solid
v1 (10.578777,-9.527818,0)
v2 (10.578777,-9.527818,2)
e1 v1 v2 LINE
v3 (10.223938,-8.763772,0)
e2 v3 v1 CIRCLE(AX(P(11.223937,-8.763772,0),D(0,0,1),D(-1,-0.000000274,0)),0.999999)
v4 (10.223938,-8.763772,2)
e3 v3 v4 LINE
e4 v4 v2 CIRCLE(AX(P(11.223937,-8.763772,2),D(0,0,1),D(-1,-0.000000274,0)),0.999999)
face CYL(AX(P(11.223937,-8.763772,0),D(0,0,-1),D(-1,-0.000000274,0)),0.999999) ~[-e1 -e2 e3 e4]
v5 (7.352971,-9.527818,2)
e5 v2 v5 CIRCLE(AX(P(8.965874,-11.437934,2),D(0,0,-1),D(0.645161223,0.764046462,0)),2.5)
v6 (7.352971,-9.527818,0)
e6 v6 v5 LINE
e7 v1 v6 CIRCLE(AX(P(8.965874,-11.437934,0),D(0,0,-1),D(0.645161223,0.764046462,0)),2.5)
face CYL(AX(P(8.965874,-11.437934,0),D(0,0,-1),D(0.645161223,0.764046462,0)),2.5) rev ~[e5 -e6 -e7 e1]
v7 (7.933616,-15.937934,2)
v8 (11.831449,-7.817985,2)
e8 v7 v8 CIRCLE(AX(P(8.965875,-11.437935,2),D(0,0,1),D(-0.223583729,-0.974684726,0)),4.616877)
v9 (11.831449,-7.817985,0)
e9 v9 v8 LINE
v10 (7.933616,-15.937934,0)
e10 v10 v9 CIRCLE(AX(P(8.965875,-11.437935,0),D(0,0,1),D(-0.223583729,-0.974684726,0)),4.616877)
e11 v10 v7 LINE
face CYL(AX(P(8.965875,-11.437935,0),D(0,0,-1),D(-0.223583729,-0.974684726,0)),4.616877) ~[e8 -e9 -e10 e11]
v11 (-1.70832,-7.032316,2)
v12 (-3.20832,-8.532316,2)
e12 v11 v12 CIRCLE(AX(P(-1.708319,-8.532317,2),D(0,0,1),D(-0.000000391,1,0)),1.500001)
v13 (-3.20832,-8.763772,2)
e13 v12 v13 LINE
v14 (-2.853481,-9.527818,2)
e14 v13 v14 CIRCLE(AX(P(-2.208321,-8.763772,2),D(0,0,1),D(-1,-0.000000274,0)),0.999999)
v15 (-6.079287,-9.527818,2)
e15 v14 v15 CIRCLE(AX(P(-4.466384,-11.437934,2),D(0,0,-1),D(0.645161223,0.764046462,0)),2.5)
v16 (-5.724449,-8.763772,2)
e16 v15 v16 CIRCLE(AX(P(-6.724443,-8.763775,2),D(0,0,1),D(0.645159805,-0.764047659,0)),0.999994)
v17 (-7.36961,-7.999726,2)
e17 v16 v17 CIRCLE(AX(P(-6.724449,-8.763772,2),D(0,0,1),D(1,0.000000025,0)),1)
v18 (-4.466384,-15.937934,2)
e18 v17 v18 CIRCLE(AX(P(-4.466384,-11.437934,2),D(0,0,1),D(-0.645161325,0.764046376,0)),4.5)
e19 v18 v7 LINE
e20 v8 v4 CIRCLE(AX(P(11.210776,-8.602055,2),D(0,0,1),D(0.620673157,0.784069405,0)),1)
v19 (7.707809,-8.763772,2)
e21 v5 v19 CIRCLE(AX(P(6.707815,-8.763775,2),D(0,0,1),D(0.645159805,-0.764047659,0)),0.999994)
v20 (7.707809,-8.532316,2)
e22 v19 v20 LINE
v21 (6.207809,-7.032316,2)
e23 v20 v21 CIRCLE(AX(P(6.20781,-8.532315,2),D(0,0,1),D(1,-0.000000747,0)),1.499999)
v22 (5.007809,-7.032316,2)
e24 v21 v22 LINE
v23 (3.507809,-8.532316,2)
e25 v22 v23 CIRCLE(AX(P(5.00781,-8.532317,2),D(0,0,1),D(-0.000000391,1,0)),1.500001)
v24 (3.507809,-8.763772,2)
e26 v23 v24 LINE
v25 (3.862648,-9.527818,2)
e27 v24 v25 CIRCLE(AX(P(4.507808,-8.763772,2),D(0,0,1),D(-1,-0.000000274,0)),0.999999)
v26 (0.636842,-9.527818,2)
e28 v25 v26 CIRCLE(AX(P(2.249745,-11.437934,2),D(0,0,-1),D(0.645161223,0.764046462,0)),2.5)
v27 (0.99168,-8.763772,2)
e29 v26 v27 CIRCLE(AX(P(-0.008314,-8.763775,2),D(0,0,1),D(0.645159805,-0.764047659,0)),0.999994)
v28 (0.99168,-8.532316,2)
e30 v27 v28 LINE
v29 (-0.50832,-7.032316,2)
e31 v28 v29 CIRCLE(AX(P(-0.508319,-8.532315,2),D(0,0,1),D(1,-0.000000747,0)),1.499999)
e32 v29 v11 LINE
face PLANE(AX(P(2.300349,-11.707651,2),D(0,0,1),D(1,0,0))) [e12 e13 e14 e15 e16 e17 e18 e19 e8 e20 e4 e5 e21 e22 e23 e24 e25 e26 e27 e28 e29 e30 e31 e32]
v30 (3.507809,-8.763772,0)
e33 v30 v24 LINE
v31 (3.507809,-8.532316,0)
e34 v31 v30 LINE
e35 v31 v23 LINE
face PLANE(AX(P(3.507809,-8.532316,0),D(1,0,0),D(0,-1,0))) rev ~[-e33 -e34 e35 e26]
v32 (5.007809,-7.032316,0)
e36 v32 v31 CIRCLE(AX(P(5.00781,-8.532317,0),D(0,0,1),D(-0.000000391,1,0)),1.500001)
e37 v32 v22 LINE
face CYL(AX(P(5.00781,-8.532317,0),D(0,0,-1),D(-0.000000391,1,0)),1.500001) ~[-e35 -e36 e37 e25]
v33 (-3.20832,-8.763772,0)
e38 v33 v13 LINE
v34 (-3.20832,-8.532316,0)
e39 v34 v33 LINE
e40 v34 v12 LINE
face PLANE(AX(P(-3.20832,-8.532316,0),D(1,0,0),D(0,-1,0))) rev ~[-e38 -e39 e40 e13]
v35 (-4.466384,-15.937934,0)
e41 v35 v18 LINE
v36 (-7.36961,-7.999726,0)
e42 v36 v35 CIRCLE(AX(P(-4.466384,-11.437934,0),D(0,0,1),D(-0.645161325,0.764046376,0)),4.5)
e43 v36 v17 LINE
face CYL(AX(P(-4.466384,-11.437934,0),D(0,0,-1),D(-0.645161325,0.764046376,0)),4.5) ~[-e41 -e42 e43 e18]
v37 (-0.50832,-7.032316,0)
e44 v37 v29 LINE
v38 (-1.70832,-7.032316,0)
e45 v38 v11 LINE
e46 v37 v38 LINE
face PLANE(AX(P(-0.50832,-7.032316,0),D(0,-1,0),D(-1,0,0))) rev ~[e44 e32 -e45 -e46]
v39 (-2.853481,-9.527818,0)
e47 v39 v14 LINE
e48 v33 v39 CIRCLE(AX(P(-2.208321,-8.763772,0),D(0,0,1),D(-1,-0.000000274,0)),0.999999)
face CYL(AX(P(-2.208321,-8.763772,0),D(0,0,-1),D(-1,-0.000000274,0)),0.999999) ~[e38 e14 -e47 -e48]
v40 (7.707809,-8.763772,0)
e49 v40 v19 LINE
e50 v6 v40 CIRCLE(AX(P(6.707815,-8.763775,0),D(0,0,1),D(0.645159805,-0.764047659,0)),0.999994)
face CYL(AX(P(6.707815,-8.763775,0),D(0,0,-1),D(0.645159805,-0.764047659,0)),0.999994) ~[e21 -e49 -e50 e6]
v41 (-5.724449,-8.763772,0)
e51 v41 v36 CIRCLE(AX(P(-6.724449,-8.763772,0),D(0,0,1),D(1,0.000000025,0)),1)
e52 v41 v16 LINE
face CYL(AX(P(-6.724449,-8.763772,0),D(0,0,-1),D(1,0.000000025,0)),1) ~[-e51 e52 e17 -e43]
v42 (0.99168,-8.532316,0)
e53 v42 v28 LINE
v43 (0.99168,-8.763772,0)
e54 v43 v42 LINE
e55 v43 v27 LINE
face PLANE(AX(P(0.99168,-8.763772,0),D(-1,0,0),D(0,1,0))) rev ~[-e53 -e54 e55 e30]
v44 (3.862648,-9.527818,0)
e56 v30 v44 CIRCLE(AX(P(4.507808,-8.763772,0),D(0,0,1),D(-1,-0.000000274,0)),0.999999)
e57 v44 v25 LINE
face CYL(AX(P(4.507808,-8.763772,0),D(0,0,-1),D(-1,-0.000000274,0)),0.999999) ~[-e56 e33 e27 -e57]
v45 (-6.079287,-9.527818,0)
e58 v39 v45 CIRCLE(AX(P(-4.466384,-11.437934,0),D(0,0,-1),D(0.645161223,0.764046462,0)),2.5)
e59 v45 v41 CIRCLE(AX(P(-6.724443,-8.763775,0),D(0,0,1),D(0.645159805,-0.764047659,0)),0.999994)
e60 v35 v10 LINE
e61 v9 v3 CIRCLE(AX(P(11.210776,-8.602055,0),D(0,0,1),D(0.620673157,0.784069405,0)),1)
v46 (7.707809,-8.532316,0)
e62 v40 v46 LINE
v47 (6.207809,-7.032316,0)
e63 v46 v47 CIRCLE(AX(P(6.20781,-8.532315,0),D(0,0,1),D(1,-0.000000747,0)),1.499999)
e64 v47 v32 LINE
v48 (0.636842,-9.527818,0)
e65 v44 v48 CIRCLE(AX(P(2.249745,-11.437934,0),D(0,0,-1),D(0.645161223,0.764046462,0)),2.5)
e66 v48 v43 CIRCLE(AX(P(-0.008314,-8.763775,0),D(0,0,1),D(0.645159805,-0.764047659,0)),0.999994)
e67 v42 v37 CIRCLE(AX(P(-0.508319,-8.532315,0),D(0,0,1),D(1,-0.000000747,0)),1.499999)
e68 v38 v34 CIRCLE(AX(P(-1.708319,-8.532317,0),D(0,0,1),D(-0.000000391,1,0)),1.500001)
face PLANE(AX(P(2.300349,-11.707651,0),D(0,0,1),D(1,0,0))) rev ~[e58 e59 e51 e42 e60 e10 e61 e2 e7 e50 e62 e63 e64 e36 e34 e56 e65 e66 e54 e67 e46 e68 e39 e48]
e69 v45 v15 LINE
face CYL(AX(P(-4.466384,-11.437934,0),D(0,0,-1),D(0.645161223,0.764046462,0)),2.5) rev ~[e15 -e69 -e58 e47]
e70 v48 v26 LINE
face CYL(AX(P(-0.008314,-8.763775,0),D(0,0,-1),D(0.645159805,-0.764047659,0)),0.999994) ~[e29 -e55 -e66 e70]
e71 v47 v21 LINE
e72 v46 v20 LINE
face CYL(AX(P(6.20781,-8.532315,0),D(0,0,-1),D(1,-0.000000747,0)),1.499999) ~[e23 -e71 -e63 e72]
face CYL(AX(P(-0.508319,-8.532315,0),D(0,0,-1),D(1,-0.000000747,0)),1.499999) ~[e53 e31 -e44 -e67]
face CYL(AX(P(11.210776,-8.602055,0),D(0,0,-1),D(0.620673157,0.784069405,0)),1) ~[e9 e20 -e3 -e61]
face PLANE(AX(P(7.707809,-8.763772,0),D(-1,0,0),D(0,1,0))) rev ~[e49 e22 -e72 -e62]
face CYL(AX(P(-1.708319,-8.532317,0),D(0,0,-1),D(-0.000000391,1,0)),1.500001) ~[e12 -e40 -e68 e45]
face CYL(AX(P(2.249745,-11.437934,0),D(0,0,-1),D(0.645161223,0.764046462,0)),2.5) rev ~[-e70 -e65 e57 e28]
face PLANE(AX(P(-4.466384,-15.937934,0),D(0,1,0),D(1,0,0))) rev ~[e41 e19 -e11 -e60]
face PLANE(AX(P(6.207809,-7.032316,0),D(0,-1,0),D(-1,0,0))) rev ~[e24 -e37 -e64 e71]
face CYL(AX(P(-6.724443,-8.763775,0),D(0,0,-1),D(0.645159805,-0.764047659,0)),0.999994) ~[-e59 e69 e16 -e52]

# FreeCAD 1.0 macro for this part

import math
import FreeCAD as App
import Part
import Sketcher

V = App.Vector
Q = App.Units.Quantity

doc = App.newDocument("Part")
body = doc.addObject("PartDesign::Body", "Body")

# Sketch on XY plane
sketch1 = doc.addObject("Sketcher::SketchObject", "Sketch")
body.addObject(sketch1)
sketch1.AttachmentSupport = (doc.XY_Plane, [""])
sketch1.MapMode = "FlatFace"
sketch1.addGeometry(Part.ArcOfCircle(Part.Circle(V(-4.47, -11.44, 0), V(0, 0, 1), 2.5), math.radians(130), math.radians(410)), False)
sketch1.addGeometry(Part.ArcOfCircle(Part.Circle(V(-6.72, -8.76, 0), V(0, 0, 1), 1), math.radians(-50), math.radians(0)), False)
sketch1.addGeometry(Part.ArcOfCircle(Part.Circle(V(-6.72, -8.76, 0), V(0, 0, 1), 1), math.radians(0), math.radians(130)), False)
sketch1.addGeometry(Part.ArcOfCircle(Part.Circle(V(-4.47, -11.44, 0), V(0, 0, 1), 4.5), math.radians(130), math.radians(270)), False)
sketch1.addGeometry(Part.LineSegment(V(-4.47, -15.94, 0), V(7.93, -15.94, 0)), False)
sketch1.addGeometry(Part.ArcOfCircle(Part.Circle(V(8.97, -11.44, 0), V(0, 0, 1), 4.62), math.radians(-103), math.radians(52)), False)
sketch1.addGeometry(Part.ArcOfCircle(Part.Circle(V(11.21, -8.6, 0), V(0, 0, 1), 1), math.radians(52), math.radians(189)), False)
sketch1.addGeometry(Part.ArcOfCircle(Part.Circle(V(11.22, -8.76, 0), V(0, 0, 1), 1), math.radians(-180), math.radians(-130)), False)
sketch1.addGeometry(Part.ArcOfCircle(Part.Circle(V(8.97, -11.44, 0), V(0, 0, 1), 2.5), math.radians(130), math.radians(410)), False)
sketch1.addGeometry(Part.ArcOfCircle(Part.Circle(V(6.71, -8.76, 0), V(0, 0, 1), 1), math.radians(-50), math.radians(0)), False)
sketch1.addGeometry(Part.LineSegment(V(7.71, -8.76, 0), V(7.71, -8.53, 0)), False)
sketch1.addGeometry(Part.ArcOfCircle(Part.Circle(V(6.21, -8.53, 0), V(0, 0, 1), 1.5), math.radians(0), math.radians(90)), False)
sketch1.addGeometry(Part.LineSegment(V(6.21, -7.03, 0), V(5.01, -7.03, 0)), False)
sketch1.addGeometry(Part.ArcOfCircle(Part.Circle(V(5.01, -8.53, 0), V(0, 0, 1), 1.5), math.radians(90), math.radians(180)), False)
sketch1.addGeometry(Part.LineSegment(V(3.51, -8.53, 0), V(3.51, -8.76, 0)), False)
sketch1.addGeometry(Part.ArcOfCircle(Part.Circle(V(4.51, -8.76, 0), V(0, 0, 1), 1), math.radians(-180), math.radians(-130)), False)
sketch1.addGeometry(Part.ArcOfCircle(Part.Circle(V(2.25, -11.44, 0), V(0, 0, 1), 2.5), math.radians(130), math.radians(410)), False)
sketch1.addGeometry(Part.ArcOfCircle(Part.Circle(V(-0.01, -8.76, 0), V(0, 0, 1), 1), math.radians(-50), math.radians(0)), False)
sketch1.addGeometry(Part.LineSegment(V(0.99, -8.76, 0), V(0.99, -8.53, 0)), False)
sketch1.addGeometry(Part.ArcOfCircle(Part.Circle(V(-0.51, -8.53, 0), V(0, 0, 1), 1.5), math.radians(0), math.radians(90)), False)
sketch1.addGeometry(Part.LineSegment(V(-0.51, -7.03, 0), V(-1.71, -7.03, 0)), False)
sketch1.addGeometry(Part.ArcOfCircle(Part.Circle(V(-1.71, -8.53, 0), V(0, 0, 1), 1.5), math.radians(90), math.radians(180)), False)
sketch1.addGeometry(Part.LineSegment(V(-3.21, -8.53, 0), V(-3.21, -8.76, 0)), False)
sketch1.addGeometry(Part.ArcOfCircle(Part.Circle(V(-2.21, -8.76, 0), V(0, 0, 1), 1), math.radians(-180), math.radians(-130)), False)
sketch1.addConstraint(Sketcher.Constraint("Tangent", 0, 1, 1, 1))
sketch1.addConstraint(Sketcher.Constraint("Coincident", 1, 2, 2, 1))
sketch1.addConstraint(Sketcher.Constraint("Tangent", 2, 2, 3, 1))
sketch1.addConstraint(Sketcher.Constraint("Tangent", 3, 2, 4, 1))
sketch1.addConstraint(Sketcher.Constraint("Coincident", 4, 2, 5, 1))
sketch1.addConstraint(Sketcher.Constraint("Tangent", 5, 2, 6, 1))
sketch1.addConstraint(Sketcher.Constraint("Coincident", 6, 2, 7, 1))
sketch1.addConstraint(Sketcher.Constraint("Tangent", 7, 2, 8, 2))
sketch1.addConstraint(Sketcher.Constraint("Tangent", 8, 1, 9, 1))
sketch1.addConstraint(Sketcher.Constraint("Coincident", 9, 2, 10, 1))
sketch1.addConstraint(Sketcher.Constraint("Tangent", 10, 2, 11, 1))
sketch1.addConstraint(Sketcher.Constraint("Tangent", 11, 2, 12, 1))
sketch1.addConstraint(Sketcher.Constraint("Tangent", 12, 2, 13, 1))
sketch1.addConstraint(Sketcher.Constraint("Tangent", 13, 2, 14, 1))
sketch1.addConstraint(Sketcher.Constraint("Tangent", 14, 2, 15, 1))
sketch1.addConstraint(Sketcher.Constraint("Tangent", 15, 2, 16, 2))
sketch1.addConstraint(Sketcher.Constraint("Tangent", 16, 1, 17, 1))
sketch1.addConstraint(Sketcher.Constraint("Coincident", 17, 2, 18, 1))
sketch1.addConstraint(Sketcher.Constraint("Tangent", 18, 2, 19, 1))
sketch1.addConstraint(Sketcher.Constraint("Tangent", 19, 2, 20, 1))
sketch1.addConstraint(Sketcher.Constraint("Tangent", 20, 2, 21, 1))
sketch1.addConstraint(Sketcher.Constraint("Tangent", 21, 2, 22, 1))
sketch1.addConstraint(Sketcher.Constraint("Tangent", 22, 2, 23, 1))
sketch1.addConstraint(Sketcher.Constraint("Tangent", 23, 2, 0, 2))
sketch1.addConstraint(Sketcher.Constraint("Horizontal", 4))
sketch1.addConstraint(Sketcher.Constraint("Vertical", 10))
sketch1.addConstraint(Sketcher.Constraint("Horizontal", 12))
sketch1.addConstraint(Sketcher.Constraint("Vertical", 14))
sketch1.addConstraint(Sketcher.Constraint("Vertical", 18))
sketch1.addConstraint(Sketcher.Constraint("Horizontal", 20))
sketch1.addConstraint(Sketcher.Constraint("Vertical", 22))
sketch1.addConstraint(Sketcher.Constraint("Coincident", 2, 3, 1, 3))
sketch1.addConstraint(Sketcher.Constraint("Coincident", 3, 3, 0, 3))
sketch1.addConstraint(Sketcher.Constraint("Coincident", 8, 3, 5, 3))
sketch1.addConstraint(Sketcher.Constraint("Equal", 2, 6))
sketch1.addConstraint(Sketcher.Constraint("Equal", 6, 7))
sketch1.addConstraint(Sketcher.Constraint("Equal", 0, 8))
sketch1.addConstraint(Sketcher.Constraint("Equal", 1, 9))
sketch1.addConstraint(Sketcher.Constraint("Equal", 11, 13))
sketch1.addConstraint(Sketcher.Constraint("Equal", 7, 15))
sketch1.addConstraint(Sketcher.Constraint("Equal", 8, 16))
sketch1.addConstraint(Sketcher.Constraint("Equal", 9, 17))
sketch1.addConstraint(Sketcher.Constraint("Equal", 13, 19))
sketch1.addConstraint(Sketcher.Constraint("Equal", 19, 21))
sketch1.addConstraint(Sketcher.Constraint("Equal", 15, 23))
sketch1.addConstraint(Sketcher.Constraint("Horizontal", 3, 3, 5, 3))
sketch1.addConstraint(Sketcher.Constraint("Horizontal", 2, 3, 7, 3))
sketch1.addConstraint(Sketcher.Constraint("Horizontal", 1, 3, 9, 3))
sketch1.addConstraint(Sketcher.Constraint("Horizontal", 7, 3, 15, 3))
sketch1.addConstraint(Sketcher.Constraint("Horizontal", 8, 3, 16, 3))
sketch1.addConstraint(Sketcher.Constraint("Horizontal", 9, 3, 17, 3))
sketch1.addConstraint(Sketcher.Constraint("Horizontal", 13, 3, 19, 3))
sketch1.addConstraint(Sketcher.Constraint("Horizontal", 15, 3, 23, 3))
sketch1.addConstraint(Sketcher.Constraint("Horizontal", 23, 3, 1, 2))
sketch1.addConstraint(Sketcher.Constraint("Horizontal", 1, 2, 6, 2))
sketch1.addConstraint(Sketcher.Constraint("Horizontal", 6, 2, 9, 2))
sketch1.addConstraint(Sketcher.Constraint("Horizontal", 14, 2, 17, 2))
sketch1.addConstraint(Sketcher.Constraint("Equal", 12, 20))
sketch1.addConstraint(Sketcher.Constraint("Radius", 2, Q("1 mm")))
sketch1.addConstraint(Sketcher.Constraint("Radius", 0, Q("2.5 mm")))
sketch1.addConstraint(Sketcher.Constraint("Radius", 11, Q("1.499999 mm")))
sketch1.addConstraint(Sketcher.Constraint("DistanceX", 4, 1, 4, 2, Q("12.4 mm")))
sketch1.addConstraint(Sketcher.Constraint("DistanceX", 12, 2, 12, 1, Q("1.2 mm")))
sketch1.addConstraint(Sketcher.Constraint("Radius", 5, Q("4.616877 mm")))
sketch1.addConstraint(Sketcher.Constraint("DistanceY", 8, 1, 13, 3, Q("0.995501 mm")))
sketch1.addConstraint(Sketcher.Constraint("DistanceX", 2, 3, -1, 1, Q("6.724449 mm")))
sketch1.addConstraint(Sketcher.Constraint("DistanceY", 7, 3, -1, 1, Q("8.763772 mm")))
pad1 = doc.addObject("PartDesign::Pad", "Pad")
body.addObject(pad1)
pad1.Profile = sketch1
pad1.Length = 2

doc.recompute()
